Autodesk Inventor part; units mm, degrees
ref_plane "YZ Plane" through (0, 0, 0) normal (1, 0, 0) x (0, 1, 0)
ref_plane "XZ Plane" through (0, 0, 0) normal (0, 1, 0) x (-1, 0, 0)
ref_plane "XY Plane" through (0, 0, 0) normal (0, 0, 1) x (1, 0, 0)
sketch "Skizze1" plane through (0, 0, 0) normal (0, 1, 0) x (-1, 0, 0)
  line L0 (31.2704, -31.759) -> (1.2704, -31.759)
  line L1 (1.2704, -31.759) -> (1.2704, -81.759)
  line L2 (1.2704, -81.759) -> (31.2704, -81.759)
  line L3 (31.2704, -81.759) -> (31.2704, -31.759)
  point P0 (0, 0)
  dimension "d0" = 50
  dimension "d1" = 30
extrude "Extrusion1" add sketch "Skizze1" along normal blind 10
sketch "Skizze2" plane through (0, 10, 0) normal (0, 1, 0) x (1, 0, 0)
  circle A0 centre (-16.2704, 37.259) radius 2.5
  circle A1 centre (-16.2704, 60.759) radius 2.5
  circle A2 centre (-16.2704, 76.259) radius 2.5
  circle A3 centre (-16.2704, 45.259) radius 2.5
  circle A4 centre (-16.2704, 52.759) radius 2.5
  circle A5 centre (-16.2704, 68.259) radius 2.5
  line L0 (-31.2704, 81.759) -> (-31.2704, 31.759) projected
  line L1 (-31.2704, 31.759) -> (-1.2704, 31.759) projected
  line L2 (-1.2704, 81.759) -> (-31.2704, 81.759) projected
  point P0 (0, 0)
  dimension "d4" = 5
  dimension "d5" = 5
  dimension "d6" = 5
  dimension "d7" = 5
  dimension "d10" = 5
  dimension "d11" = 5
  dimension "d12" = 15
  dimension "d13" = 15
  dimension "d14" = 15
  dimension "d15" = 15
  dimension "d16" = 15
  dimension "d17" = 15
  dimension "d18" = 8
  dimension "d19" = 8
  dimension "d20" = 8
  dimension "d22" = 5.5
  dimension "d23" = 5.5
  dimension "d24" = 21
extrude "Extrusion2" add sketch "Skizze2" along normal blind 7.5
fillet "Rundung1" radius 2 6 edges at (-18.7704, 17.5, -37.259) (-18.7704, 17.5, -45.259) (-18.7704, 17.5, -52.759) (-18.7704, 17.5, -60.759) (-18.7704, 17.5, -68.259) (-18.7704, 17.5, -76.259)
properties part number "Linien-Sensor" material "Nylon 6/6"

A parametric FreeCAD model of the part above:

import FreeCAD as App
import Part
import Sketcher
Q = App.Units.Quantity


def edges_at(feature, points):
    """Names of the edges that pass closest to the given points."""
    edges = feature.Shape.Edges
    near = lambda p: min(range(len(edges)), key=lambda i: edges[i].distToShape(Part.Vertex(*p))[0])
    return sorted({f"Edge{near(p) + 1}" for p in points})

doc = App.newDocument("Part")
params = doc.addObject("Spreadsheet::Sheet", "Params")
for row, (alias, value) in enumerate([
    ("sketch1_width", "30 mm"),
    ("sketch1_height", "50 mm"),
    ("pad1_length", "10 mm"),
    ("sketch2_diameter", "5 mm"),
    ("pad2_length", "7.5 mm"),
    ("fillet_radius", "2 mm"),
], start=1):
    params.set(f"A{row}", alias)
    params.set(f"B{row}", "=" + value)
    params.setAlias(f"B{row}", alias)

body = doc.addObject("PartDesign::Body", "Body")

sketch1 = body.newObject("Sketcher::SketchObject", "Sketch")
sketch1.AttachmentSupport = (doc.getObject("XZ_Plane"), [""])
sketch1.MapMode = "FlatFace"
sketch1.addGeometry([
    Part.LineSegment(App.Vector(-31, -82, 0), App.Vector(-31, -32, 0)),
    Part.LineSegment(App.Vector(-31, -32, 0), App.Vector(-1, -32, 0)),
    Part.LineSegment(App.Vector(-1, -32, 0), App.Vector(-1, -82, 0)),
    Part.LineSegment(App.Vector(-1, -82, 0), App.Vector(-31, -82, 0)),
], False)
sketch1.addConstraint([
    Sketcher.Constraint("Coincident", 0, 2, 1, 1),
    Sketcher.Constraint("Coincident", 1, 2, 2, 1),
    Sketcher.Constraint("Coincident", 2, 2, 3, 1),
    Sketcher.Constraint("Coincident", 3, 2, 0, 1),
    Sketcher.Constraint("Vertical", 0),
    Sketcher.Constraint("Horizontal", 1),
    Sketcher.Constraint("Vertical", 2),
    Sketcher.Constraint("Horizontal", 3),
    Sketcher.Constraint("DistanceX", 1, 1, 1, 2, Q("30 mm")),
    Sketcher.Constraint("DistanceY", 0, 1, 0, 2, Q("50 mm")),
    Sketcher.Constraint("DistanceY", 0, 2, -1, 1, Q("31.759 mm")),
    Sketcher.Constraint("DistanceX", 0, 2, -1, 1, Q("31.2704 mm")),
])
sketch1.setExpression("Constraints[8]", "Params.sketch1_width")
sketch1.setExpression("Constraints[9]", "Params.sketch1_height")
pad1 = body.newObject("PartDesign::Pad", "Pad")
pad1.Profile = sketch1
pad1.setExpression("Length", "Params.pad1_length")
pad1.Reversed = True

sketch2 = body.newObject("Sketcher::SketchObject", "Sketch001")
sketch2.AttachmentSupport = (doc.getObject("XZ_Plane"), [""])
sketch2.MapMode = "FlatFace"
sketch2.AttachmentOffset = App.Placement(App.Vector(0, 0, -10), App.Rotation())
sketch2.addGeometry([
    Part.Circle(App.Vector(-16.3, -37.3, 0), App.Vector(0, 0, 1), 2.5),
    Part.Circle(App.Vector(-16.3, -60.8, 0), App.Vector(0, 0, 1), 2.5),
    Part.Circle(App.Vector(-16.3, -76.3, 0), App.Vector(0, 0, 1), 2.5),
    Part.Circle(App.Vector(-16.3, -45.3, 0), App.Vector(0, 0, 1), 2.5),
    Part.Circle(App.Vector(-16.3, -52.8, 0), App.Vector(0, 0, 1), 2.5),
    Part.Circle(App.Vector(-16.3, -68.3, 0), App.Vector(0, 0, 1), 2.5),
], False)
sketch2.addConstraint([
    Sketcher.Constraint("Equal", 0, 1),
    Sketcher.Constraint("Equal", 1, 2),
    Sketcher.Constraint("Equal", 2, 3),
    Sketcher.Constraint("Equal", 3, 4),
    Sketcher.Constraint("Equal", 4, 5),
    Sketcher.Constraint("Vertical", 0, 3, 1, 3),
    Sketcher.Constraint("Vertical", 1, 3, 2, 3),
    Sketcher.Constraint("Vertical", 2, 3, 3, 3),
    Sketcher.Constraint("Vertical", 3, 3, 4, 3),
    Sketcher.Constraint("Vertical", 4, 3, 5, 3),
    Sketcher.Constraint("Diameter", 0, Q("5 mm")),
    Sketcher.Constraint("DistanceY", 3, 3, 0, 3, Q("8 mm")),
    Sketcher.Constraint("DistanceY", 1, 3, 4, 3, Q("8 mm")),
    Sketcher.Constraint("DistanceY", 2, 3, 5, 3, Q("8 mm")),
    Sketcher.Constraint("DistanceY", 2, 3, 0, 3, Q("39 mm")),
    Sketcher.Constraint("DistanceY", 1, 3, 0, 3, Q("23.5 mm")),
    Sketcher.Constraint("DistanceY", 0, 3, -1, 1, Q("37.259 mm")),
    Sketcher.Constraint("DistanceX", 0, 3, -1, 1, Q("16.2704 mm")),
])
sketch2.setExpression("Constraints[10]", "Params.sketch2_diameter")
pad2 = body.newObject("PartDesign::Pad", "Pad001")
pad2.Profile = sketch2
pad2.setExpression("Length", "Params.pad2_length")
pad2.Reversed = True
doc.recompute()

fillet = body.newObject("PartDesign::Fillet", "Fillet")
fillet.Base = (pad2, edges_at(pad2, [
    (-18.77, 17.5, -37.259),
    (-18.77, 17.5, -45.259),
    (-18.77, 17.5, -52.759),
    (-18.77, 17.5, -60.759),
    (-18.77, 17.5, -68.259),
    (-18.77, 17.5, -76.259),
]))
fillet.setExpression("Radius", "Params.fillet_radius")

doc.recompute()
